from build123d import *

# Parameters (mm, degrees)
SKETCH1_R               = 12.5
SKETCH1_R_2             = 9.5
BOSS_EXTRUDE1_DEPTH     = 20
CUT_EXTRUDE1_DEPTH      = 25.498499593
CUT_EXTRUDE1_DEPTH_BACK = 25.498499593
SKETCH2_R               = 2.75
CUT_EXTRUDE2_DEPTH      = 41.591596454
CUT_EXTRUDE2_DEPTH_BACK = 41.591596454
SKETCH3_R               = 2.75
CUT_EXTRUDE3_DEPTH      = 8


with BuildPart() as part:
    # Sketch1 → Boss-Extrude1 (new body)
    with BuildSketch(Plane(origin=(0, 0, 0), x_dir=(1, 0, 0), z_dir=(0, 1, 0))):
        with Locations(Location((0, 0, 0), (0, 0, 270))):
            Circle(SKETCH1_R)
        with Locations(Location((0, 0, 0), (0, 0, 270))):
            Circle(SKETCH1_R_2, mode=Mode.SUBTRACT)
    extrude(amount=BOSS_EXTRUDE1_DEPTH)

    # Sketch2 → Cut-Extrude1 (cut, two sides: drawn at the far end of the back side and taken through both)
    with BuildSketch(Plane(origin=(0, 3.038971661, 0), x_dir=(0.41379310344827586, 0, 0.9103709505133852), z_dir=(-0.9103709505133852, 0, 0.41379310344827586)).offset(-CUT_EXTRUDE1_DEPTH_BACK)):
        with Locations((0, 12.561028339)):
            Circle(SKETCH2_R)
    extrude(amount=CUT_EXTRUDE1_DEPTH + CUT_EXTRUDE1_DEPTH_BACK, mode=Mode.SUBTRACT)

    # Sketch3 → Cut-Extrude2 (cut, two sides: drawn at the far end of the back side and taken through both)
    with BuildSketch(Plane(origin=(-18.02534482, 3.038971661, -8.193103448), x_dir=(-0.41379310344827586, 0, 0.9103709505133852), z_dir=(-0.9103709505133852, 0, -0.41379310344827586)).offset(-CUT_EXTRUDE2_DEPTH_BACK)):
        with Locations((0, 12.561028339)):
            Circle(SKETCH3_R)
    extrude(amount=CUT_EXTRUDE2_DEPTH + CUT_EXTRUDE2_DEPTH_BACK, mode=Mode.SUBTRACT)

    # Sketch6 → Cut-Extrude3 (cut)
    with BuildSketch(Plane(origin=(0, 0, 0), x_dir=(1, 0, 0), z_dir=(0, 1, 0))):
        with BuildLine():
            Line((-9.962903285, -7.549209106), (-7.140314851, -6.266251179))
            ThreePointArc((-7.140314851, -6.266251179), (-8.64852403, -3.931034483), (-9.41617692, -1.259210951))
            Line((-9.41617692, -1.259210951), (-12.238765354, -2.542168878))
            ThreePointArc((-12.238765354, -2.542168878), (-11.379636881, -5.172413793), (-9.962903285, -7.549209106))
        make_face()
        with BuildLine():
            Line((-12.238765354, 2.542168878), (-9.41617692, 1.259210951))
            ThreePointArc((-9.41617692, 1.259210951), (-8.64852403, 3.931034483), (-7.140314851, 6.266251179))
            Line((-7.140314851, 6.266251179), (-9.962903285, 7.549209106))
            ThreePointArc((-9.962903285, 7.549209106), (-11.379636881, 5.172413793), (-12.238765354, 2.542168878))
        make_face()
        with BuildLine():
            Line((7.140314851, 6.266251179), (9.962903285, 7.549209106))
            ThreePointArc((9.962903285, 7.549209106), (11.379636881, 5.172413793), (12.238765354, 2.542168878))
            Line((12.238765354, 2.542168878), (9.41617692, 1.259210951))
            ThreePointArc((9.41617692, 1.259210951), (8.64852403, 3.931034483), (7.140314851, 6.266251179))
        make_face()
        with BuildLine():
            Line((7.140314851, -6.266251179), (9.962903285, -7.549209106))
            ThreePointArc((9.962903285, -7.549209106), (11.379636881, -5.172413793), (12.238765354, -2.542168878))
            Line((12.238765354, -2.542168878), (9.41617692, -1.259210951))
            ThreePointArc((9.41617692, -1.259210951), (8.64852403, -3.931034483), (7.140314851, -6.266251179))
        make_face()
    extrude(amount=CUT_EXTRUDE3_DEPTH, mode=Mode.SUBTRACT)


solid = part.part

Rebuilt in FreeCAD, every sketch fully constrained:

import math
import FreeCAD as App
import Part
import Sketcher
from FreeCAD import Vector

doc = App.newDocument("Part")
body = doc.addObject("PartDesign::Body", "Body")

# Sketch on XZ plane
sketch1 = body.newObject("Sketcher::SketchObject", "Sketch")
sketch1.AttachmentSupport = (doc.getObject("XZ_Plane"), [""])
sketch1.MapMode = "FlatFace"
sketch1.addGeometry([
    Part.Circle(Vector(0, 0, 0), Vector(0, 0, 1), 12.5),
    Part.Circle(Vector(0, 0, 0), Vector(0, 0, 1), 9.5),
], False)
sketch1.addConstraint([
    Sketcher.Constraint("Coincident", 0, 3, -1, 1),
    Sketcher.Constraint("Coincident", 1, 3, -1, 1),
    Sketcher.Constraint("Diameter", 0, 25.0),
    Sketcher.Constraint("Diameter", 1, 19.0),
])
pad1 = body.newObject("PartDesign::Pad", "Pad")
pad1.Profile = sketch1
pad1.Length = 20
pad1.Reversed = True

# Sketch on an angled plane
sketch2 = body.newObject("Sketcher::SketchObject", "Sketch001")
sketch2.Placement = App.Placement(Vector(0, 3.038972, 0), App.Rotation(Vector(0.413793103, 0, 0.910370951), Vector(0, 1.000000001, 0), Vector(-0.910370951, 0, 0.413793103), "ZXY"))
sketch2.addGeometry(Part.Circle(Vector(0, 12.561028, 0), Vector(0, 0, 1), 2.75), False)
sketch2.addConstraint([
    Sketcher.Constraint("PointOnObject", 0, 3, -2),
    Sketcher.Constraint("Diameter", 0, 5.5),
    Sketcher.Constraint("DistanceY", -1, 1, 0, 3, 12.561028),
])
pocket1 = body.newObject("PartDesign::Pocket", "Pocket")
pocket1.Profile = sketch2
pocket1.Type = "ThroughAll"
pocket1.Midplane = True

# Sketch on an angled plane
sketch3 = body.newObject("Sketcher::SketchObject", "Sketch002")
sketch3.Placement = App.Placement(Vector(-18.025345, 3.038972, -8.193103), App.Rotation(Vector(-0.413793103, 0, 0.910370951), Vector(0, 1.000000001, 0), Vector(-0.910370951, 0, -0.413793103), "ZXY"))
sketch3.addGeometry(Part.Circle(Vector(0, 12.561028, 0), Vector(0, 0, 1), 2.75), False)
sketch3.addConstraint([
    Sketcher.Constraint("PointOnObject", 0, 3, -2),
    Sketcher.Constraint("Diameter", 0, 5.5),
    Sketcher.Constraint("DistanceY", -1, 1, 0, 3, 12.561028),
])
pocket2 = body.newObject("PartDesign::Pocket", "Pocket001")
pocket2.Profile = sketch3
pocket2.Type = "ThroughAll"
pocket2.Midplane = True

# Sketch on XZ plane
sketch4 = body.newObject("Sketcher::SketchObject", "Sketch003")
sketch4.AttachmentSupport = (doc.getObject("XZ_Plane"), [""])
sketch4.MapMode = "FlatFace"
sketch4.addGeometry([
    Part.LineSegment(Vector(-9.962903, 7.549209, 0), Vector(-7.140315, 6.266251, 0)),  # 0
    Part.ArcOfCircle(Part.Circle(Vector(0, 0, 0), Vector(0, 0, 1), 9.5), math.radians(138.730216), math.radians(172.383113)),  # 1
    Part.LineSegment(Vector(-9.416177, 1.259211, 0), Vector(-12.238765, 2.542169, 0)),  # 2
    Part.ArcOfCircle(Part.Circle(Vector(0, 0, 0), Vector(0, 0, 1), 12.5), math.radians(142.847632), math.radians(168.265698)),  # 3
    Part.LineSegment(Vector(-12.238765, -2.542169, 0), Vector(-9.416177, -1.259211, 0)),  # 4
    Part.ArcOfCircle(Part.Circle(Vector(0, 0, 0), Vector(0, 0, 1), 9.5), math.radians(-172.383113), math.radians(-138.730216)),  # 5
    Part.LineSegment(Vector(-7.140315, -6.266251, 0), Vector(-9.962903, -7.549209, 0)),  # 6
    Part.ArcOfCircle(Part.Circle(Vector(0, 0, 0), Vector(0, 0, 1), 12.5), math.radians(-168.265698), math.radians(-142.847632)),  # 7
    Part.LineSegment(Vector(9.962903, -7.549209, 0), Vector(7.140315, -6.266251, 0)),  # 8
    Part.ArcOfCircle(Part.Circle(Vector(0, 0, 0), Vector(0, 0, 1), 9.5), math.radians(-41.269784), math.radians(-7.616887)),  # 9
    Part.LineSegment(Vector(9.416177, -1.259211, 0), Vector(12.238765, -2.542169, 0)),  # 10
    Part.ArcOfCircle(Part.Circle(Vector(0, 0, 0), Vector(0, 0, 1), 12.5), math.radians(-37.152368), math.radians(-11.734302)),  # 11
    Part.LineSegment(Vector(7.140315, 6.266251, 0), Vector(9.962903, 7.549209, 0)),  # 12
    Part.ArcOfCircle(Part.Circle(Vector(0, 0, 0), Vector(0, 0, 1), 12.5), math.radians(11.734302), math.radians(37.152368)),  # 13
    Part.LineSegment(Vector(12.238765, 2.542169, 0), Vector(9.416177, 1.259211, 0)),  # 14
    Part.ArcOfCircle(Part.Circle(Vector(0, 0, 0), Vector(0, 0, 1), 9.5), math.radians(7.616887), math.radians(41.269784)),  # 15
], False)
sketch4.addConstraint([
    Sketcher.Constraint("Coincident", 0, 2, 1, 1),
    Sketcher.Constraint("Coincident", 1, 2, 2, 1),
    Sketcher.Constraint("Coincident", 2, 2, 3, 2),
    Sketcher.Constraint("Coincident", 3, 1, 0, 1),
    Sketcher.Constraint("Coincident", 4, 2, 5, 1),
    Sketcher.Constraint("Coincident", 5, 2, 6, 1),
    Sketcher.Constraint("Coincident", 6, 2, 7, 2),
    Sketcher.Constraint("Coincident", 7, 1, 4, 1),
    Sketcher.Constraint("Coincident", 8, 2, 9, 1),
    Sketcher.Constraint("Coincident", 9, 2, 10, 1),
    Sketcher.Constraint("Coincident", 10, 2, 11, 2),
    Sketcher.Constraint("Coincident", 11, 1, 8, 1),
    Sketcher.Constraint("Coincident", 12, 2, 13, 2),
    Sketcher.Constraint("Coincident", 13, 1, 14, 1),
    Sketcher.Constraint("Coincident", 14, 2, 15, 1),
    Sketcher.Constraint("Coincident", 15, 2, 12, 1),
    Sketcher.Constraint("Coincident", 1, 3, -1, 1),
    Sketcher.Constraint("Coincident", 3, 3, -1, 1),
    Sketcher.Constraint("Coincident", 5, 3, -1, 1),
    Sketcher.Constraint("Coincident", 7, 3, -1, 1),
    Sketcher.Constraint("Coincident", 9, 3, -1, 1),
    Sketcher.Constraint("Coincident", 11, 3, -1, 1),
    Sketcher.Constraint("Coincident", 13, 3, -1, 1),
    Sketcher.Constraint("Coincident", 15, 3, -1, 1),
    Sketcher.Constraint("Equal", 1, 5),
    Sketcher.Constraint("Equal", 3, 7),
    Sketcher.Constraint("Equal", 5, 9),
    Sketcher.Constraint("Equal", 7, 11),
    Sketcher.Constraint("Equal", 11, 13),
    Sketcher.Constraint("Equal", 9, 15),
    Sketcher.Constraint("Parallel", 0, 2),
    Sketcher.Constraint("Parallel", 4, 6),
    Sketcher.Constraint("Parallel", 2, 8),
    Sketcher.Constraint("Parallel", 8, 10),
    Sketcher.Constraint("Parallel", 6, 12),
    Sketcher.Constraint("Parallel", 12, 14),
    Sketcher.Constraint("Horizontal", 5, 2, 8, 2),
    Sketcher.Constraint("Horizontal", 4, 2, 9, 2),
    Sketcher.Constraint("Horizontal", 7, 1, 10, 2),
    Sketcher.Constraint("Horizontal", 3, 1, 12, 2),
    Sketcher.Constraint("Horizontal", 2, 2, 13, 1),
    Sketcher.Constraint("Vertical", 1, 2, 4, 2),
    Sketcher.Constraint("Vertical", 0, 2, 5, 2),
    Sketcher.Constraint("Equal", 0, 2),
    Sketcher.Constraint("Radius", 1, 9.5),
    Sketcher.Constraint("Radius", 3, 12.5),
    Sketcher.Constraint("DistanceY", 1, 2, 3, 1, 6.289998),
    Sketcher.Constraint("DistanceY", -1, 1, 0, 2, 6.266251),
])
pocket3 = body.newObject("PartDesign::Pocket", "Pocket002")
pocket3.Profile = sketch4
pocket3.Length = 8

doc.recompute()
